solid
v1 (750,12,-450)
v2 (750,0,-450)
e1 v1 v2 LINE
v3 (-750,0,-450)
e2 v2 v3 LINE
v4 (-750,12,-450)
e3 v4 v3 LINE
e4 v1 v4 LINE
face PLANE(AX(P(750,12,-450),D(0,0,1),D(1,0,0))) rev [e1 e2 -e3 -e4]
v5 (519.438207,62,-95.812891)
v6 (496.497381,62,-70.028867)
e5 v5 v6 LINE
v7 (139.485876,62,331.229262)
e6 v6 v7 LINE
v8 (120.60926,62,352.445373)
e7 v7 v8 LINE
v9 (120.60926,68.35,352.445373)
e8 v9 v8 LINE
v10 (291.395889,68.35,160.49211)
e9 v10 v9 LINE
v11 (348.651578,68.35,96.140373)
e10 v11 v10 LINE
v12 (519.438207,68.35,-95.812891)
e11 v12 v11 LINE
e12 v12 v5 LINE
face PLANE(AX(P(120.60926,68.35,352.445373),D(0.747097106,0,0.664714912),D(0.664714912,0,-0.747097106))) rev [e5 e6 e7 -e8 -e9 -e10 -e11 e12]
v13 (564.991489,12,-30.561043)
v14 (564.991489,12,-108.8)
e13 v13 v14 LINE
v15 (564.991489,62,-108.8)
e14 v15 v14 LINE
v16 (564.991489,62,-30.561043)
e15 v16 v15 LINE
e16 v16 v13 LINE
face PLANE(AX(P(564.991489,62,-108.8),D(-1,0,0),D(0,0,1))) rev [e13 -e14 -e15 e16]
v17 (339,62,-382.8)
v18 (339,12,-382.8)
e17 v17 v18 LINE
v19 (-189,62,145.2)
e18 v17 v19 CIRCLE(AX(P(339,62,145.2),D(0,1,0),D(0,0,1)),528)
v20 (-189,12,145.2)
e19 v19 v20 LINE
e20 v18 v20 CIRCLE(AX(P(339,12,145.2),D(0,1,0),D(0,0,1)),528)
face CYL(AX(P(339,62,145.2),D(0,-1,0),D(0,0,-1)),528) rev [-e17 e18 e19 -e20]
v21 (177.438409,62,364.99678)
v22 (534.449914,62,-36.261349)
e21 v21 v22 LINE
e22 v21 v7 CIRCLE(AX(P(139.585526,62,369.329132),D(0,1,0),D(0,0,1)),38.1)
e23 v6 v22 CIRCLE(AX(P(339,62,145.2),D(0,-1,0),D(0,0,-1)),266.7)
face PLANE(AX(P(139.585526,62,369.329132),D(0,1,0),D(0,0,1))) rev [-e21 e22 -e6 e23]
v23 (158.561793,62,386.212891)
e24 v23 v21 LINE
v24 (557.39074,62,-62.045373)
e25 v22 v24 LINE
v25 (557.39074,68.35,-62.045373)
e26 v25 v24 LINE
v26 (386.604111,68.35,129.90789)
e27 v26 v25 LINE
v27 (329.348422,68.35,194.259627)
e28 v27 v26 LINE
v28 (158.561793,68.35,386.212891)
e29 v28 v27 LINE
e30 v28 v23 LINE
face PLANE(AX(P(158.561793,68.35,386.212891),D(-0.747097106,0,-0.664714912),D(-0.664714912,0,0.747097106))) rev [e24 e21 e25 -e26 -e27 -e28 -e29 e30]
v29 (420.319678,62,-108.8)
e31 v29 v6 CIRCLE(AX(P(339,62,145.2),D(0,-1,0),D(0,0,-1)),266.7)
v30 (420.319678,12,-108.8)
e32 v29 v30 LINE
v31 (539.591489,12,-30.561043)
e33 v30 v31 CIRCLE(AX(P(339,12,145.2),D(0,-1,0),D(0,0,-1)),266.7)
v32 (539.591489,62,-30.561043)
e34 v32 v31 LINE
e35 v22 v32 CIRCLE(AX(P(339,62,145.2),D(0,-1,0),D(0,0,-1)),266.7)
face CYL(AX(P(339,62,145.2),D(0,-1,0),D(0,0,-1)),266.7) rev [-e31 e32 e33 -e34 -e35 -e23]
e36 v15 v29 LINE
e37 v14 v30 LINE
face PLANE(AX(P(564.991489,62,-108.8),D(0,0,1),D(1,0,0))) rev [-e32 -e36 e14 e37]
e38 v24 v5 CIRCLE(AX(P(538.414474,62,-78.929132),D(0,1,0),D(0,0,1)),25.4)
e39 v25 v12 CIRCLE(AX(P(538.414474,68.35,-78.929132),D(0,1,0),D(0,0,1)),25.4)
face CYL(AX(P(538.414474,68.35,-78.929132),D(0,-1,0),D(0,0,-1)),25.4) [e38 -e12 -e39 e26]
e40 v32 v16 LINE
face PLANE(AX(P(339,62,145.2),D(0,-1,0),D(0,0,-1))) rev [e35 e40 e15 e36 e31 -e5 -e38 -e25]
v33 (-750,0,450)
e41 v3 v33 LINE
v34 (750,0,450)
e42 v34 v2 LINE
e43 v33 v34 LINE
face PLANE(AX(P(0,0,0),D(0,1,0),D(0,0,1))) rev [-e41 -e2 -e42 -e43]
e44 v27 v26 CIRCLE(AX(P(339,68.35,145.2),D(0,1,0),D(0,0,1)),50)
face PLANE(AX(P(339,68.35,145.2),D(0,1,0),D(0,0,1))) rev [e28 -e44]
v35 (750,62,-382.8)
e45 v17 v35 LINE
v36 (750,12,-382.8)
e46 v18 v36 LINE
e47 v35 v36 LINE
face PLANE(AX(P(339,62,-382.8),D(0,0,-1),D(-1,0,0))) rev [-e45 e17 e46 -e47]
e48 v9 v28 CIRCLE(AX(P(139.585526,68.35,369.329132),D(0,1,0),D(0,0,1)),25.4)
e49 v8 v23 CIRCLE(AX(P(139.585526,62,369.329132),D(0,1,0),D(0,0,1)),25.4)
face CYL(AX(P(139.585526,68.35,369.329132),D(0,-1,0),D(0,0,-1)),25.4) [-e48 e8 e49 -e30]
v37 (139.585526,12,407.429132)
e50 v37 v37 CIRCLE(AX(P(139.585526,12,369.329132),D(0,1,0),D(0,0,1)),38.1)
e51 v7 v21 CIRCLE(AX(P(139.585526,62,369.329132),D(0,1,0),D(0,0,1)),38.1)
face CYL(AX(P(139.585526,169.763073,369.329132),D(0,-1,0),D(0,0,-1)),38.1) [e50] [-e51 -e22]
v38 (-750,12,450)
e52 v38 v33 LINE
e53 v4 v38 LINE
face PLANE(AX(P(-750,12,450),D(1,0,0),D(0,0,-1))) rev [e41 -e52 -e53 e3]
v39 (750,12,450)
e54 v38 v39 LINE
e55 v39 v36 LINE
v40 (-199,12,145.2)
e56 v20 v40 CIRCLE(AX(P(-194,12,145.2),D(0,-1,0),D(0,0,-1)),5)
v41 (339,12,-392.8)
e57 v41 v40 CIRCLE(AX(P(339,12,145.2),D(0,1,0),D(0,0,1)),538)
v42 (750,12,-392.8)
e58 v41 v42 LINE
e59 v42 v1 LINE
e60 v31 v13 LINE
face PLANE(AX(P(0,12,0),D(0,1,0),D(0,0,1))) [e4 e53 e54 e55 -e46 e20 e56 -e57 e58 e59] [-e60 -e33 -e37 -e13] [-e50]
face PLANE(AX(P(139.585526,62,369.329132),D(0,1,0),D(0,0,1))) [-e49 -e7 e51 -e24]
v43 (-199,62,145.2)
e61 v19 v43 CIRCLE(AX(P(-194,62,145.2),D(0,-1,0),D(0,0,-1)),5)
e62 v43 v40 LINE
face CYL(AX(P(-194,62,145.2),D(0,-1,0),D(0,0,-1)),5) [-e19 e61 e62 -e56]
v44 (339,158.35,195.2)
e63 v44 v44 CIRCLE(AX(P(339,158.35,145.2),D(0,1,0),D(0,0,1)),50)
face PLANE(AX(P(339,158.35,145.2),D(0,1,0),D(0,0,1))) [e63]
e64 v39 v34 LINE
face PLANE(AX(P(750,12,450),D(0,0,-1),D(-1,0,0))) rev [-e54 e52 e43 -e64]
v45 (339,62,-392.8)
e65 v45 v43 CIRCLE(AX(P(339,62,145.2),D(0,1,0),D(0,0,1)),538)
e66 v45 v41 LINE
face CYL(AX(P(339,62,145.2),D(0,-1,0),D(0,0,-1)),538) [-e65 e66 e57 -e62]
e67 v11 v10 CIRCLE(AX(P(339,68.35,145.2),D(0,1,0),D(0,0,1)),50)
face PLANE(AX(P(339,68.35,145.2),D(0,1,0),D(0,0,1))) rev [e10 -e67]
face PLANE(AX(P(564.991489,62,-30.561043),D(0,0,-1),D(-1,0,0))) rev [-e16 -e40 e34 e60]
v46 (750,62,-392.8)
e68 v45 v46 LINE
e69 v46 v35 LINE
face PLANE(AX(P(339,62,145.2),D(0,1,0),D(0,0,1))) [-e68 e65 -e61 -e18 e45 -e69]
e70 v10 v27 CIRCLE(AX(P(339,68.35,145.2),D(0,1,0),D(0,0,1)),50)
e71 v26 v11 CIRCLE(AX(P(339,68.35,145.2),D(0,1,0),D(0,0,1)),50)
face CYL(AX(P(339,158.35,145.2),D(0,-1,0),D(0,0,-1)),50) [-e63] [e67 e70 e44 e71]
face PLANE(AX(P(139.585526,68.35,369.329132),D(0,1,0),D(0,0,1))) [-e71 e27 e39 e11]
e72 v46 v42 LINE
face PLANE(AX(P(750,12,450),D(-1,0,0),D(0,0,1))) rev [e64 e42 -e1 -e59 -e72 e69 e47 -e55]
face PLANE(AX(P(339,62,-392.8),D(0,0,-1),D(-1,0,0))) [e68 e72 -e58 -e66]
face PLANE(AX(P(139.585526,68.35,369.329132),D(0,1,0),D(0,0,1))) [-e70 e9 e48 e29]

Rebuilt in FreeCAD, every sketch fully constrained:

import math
import FreeCAD as App
import Part
import Sketcher
Q = App.Units.Quantity


def add_polygon(sketch, points):
    """Adds a closed chain of lines whose ends are joined by coincident constraints."""
    first, n = sketch.GeometryCount, len(points)
    for a, b in zip(points, points[1:] + points[:1]):
        sketch.addGeometry(Part.LineSegment(App.Vector(*a, 0), App.Vector(*b, 0)), False)
    for i in range(n):
        sketch.addConstraint(Sketcher.Constraint("Coincident", first + i, 2, first + (i + 1) % n, 1))

doc = App.newDocument("Part")
body = doc.addObject("PartDesign::Body", "Body")

sketch1 = body.newObject("Sketcher::SketchObject", "Sketch")
sketch1.AttachmentSupport = (doc.getObject("XZ_Plane"), [""])
sketch1.MapMode = "FlatFace"
add_polygon(sketch1, [(-750, -450), (-750, 450), (750, 450), (750, -450)])
sketch1.addConstraint([
    Sketcher.Constraint("Vertical", 0),
    Sketcher.Constraint("Horizontal", 1),
    Sketcher.Constraint("Vertical", 2),
    Sketcher.Constraint("Horizontal", 3),
    Sketcher.Constraint("Symmetric", 0, 2, 2, 2, -1, 1),
    Sketcher.Constraint("DistanceX", 1, 1, 1, 2, Q("1500 mm")),
    Sketcher.Constraint("DistanceY", 0, 1, 0, 2, Q("900 mm")),
])
pad1 = body.newObject("PartDesign::Pad", "Pad")
pad1.Profile = sketch1
pad1.Length = 12
pad1.Reversed = True

sketch2 = body.newObject("Sketcher::SketchObject", "Sketch001")
sketch2.AttachmentSupport = (doc.getObject("XZ_Plane"), [""])
sketch2.MapMode = "FlatFace"
sketch2.AttachmentOffset = App.Placement(App.Vector(0, 0, -12), App.Rotation())
sketch2.addGeometry([
    Part.LineSegment(App.Vector(339, -383, 0), App.Vector(750, -383, 0)),
    Part.LineSegment(App.Vector(750, -383, 0), App.Vector(750, -393, 0)),
    Part.LineSegment(App.Vector(750, -393, 0), App.Vector(339, -393, 0)),
    Part.ArcOfCircle(Part.Circle(App.Vector(339, 145, 0), App.Vector(0, 0, 1), 538), math.radians(-180), math.radians(-90)),
    Part.ArcOfCircle(Part.Circle(App.Vector(-194, 145, 0), App.Vector(0, 0, 1), 5), math.radians(0), math.radians(180)),
    Part.ArcOfCircle(Part.Circle(App.Vector(339, 145, 0), App.Vector(0, 0, 1), 528), math.radians(-180), math.radians(-90)),
], False)
sketch2.addConstraint([
    Sketcher.Constraint("Coincident", 0, 2, 1, 1),
    Sketcher.Constraint("Coincident", 1, 2, 2, 1),
    Sketcher.Constraint("Tangent", 2, 2, 3, 2),
    Sketcher.Constraint("Tangent", 3, 1, 4, 2),
    Sketcher.Constraint("Tangent", 4, 1, 5, 1),
    Sketcher.Constraint("Tangent", 5, 2, 0, 1),
    Sketcher.Constraint("Horizontal", 0),
    Sketcher.Constraint("Vertical", 1),
    Sketcher.Constraint("Horizontal", 2),
    Sketcher.Constraint("Coincident", 5, 3, 3, 3),
    Sketcher.Constraint("Horizontal", 3, 3, 4, 3),
    Sketcher.Constraint("Radius", 3, Q("538 mm")),
    Sketcher.Constraint("Radius", 4, Q("5 mm")),
    Sketcher.Constraint("DistanceX", 0, 1, 0, 2, Q("411 mm")),
    Sketcher.Constraint("DistanceX", -1, 1, 3, 3, Q("339 mm")),
    Sketcher.Constraint("DistanceY", -1, 1, 3, 3, Q("145.2 mm")),
])
pad2 = body.newObject("PartDesign::Pad", "Pad001")
pad2.Profile = sketch2
pad2.Length = 50
pad2.Reversed = True

sketch3 = body.newObject("Sketcher::SketchObject", "Sketch002")
sketch3.AttachmentSupport = (doc.getObject("XZ_Plane"), [""])
sketch3.MapMode = "FlatFace"
sketch3.AttachmentOffset = App.Placement(App.Vector(0, 0, -12), App.Rotation())
sketch3.addGeometry([
    Part.LineSegment(App.Vector(565, -109, 0), App.Vector(420, -109, 0)),
    Part.ArcOfCircle(Part.Circle(App.Vector(339, 145, 0), App.Vector(0, 0, 1), 267), math.radians(-72), math.radians(-41)),
    Part.LineSegment(App.Vector(540, -31, 0), App.Vector(565, -31, 0)),
    Part.LineSegment(App.Vector(565, -31, 0), App.Vector(565, -109, 0)),
], False)
sketch3.addConstraint([
    Sketcher.Constraint("Coincident", 0, 2, 1, 1),
    Sketcher.Constraint("Coincident", 1, 2, 2, 1),
    Sketcher.Constraint("Coincident", 2, 2, 3, 1),
    Sketcher.Constraint("Coincident", 3, 2, 0, 1),
    Sketcher.Constraint("Horizontal", 0),
    Sketcher.Constraint("Horizontal", 2),
    Sketcher.Constraint("Vertical", 3),
    Sketcher.Constraint("Radius", 1, Q("266.7 mm")),
    Sketcher.Constraint("DistanceX", 2, 1, 2, 2, Q("25.4 mm")),
    Sketcher.Constraint("DistanceX", -1, 1, 1, 3, Q("339 mm")),
    Sketcher.Constraint("DistanceY", 0, 2, 1, 3, Q("254 mm")),
    Sketcher.Constraint("DistanceY", -1, 1, 1, 3, Q("145.2 mm")),
    Sketcher.Constraint("DistanceX", 0, 2, 0, 1, Q("144.671812 mm")),
])
pad3 = body.newObject("PartDesign::Pad", "Pad002")
pad3.Profile = sketch3
pad3.Length = 50
pad3.Reversed = True

sketch4 = body.newObject("Sketcher::SketchObject", "Sketch003")
sketch4.AttachmentSupport = (doc.getObject("XZ_Plane"), [""])
sketch4.MapMode = "FlatFace"
sketch4.AttachmentOffset = App.Placement(App.Vector(0, 0, -62), App.Rotation())
sketch4.addGeometry([
    Part.LineSegment(App.Vector(519, -96, 0), App.Vector(121, 352, 0)),
    Part.ArcOfCircle(Part.Circle(App.Vector(140, 369, 0), App.Vector(0, 0, 1), 25), math.radians(42), math.radians(222)),
    Part.LineSegment(App.Vector(159, 386, 0), App.Vector(557, -62, 0)),
    Part.ArcOfCircle(Part.Circle(App.Vector(538, -79, 0), App.Vector(0, 0, 1), 25), math.radians(-138), math.radians(42)),
], False)
sketch4.addConstraint([
    Sketcher.Constraint("Tangent", 0, 2, 1, 2),
    Sketcher.Constraint("Tangent", 1, 1, 2, 1),
    Sketcher.Constraint("Tangent", 2, 2, 3, 2),
    Sketcher.Constraint("Tangent", 3, 1, 0, 1),
    Sketcher.Constraint("Equal", 1, 3),
    Sketcher.Constraint("Radius", 1, Q("25.4 mm")),
    Sketcher.Constraint("Distance", 0, Q("600 mm")),
    Sketcher.Constraint("DistanceY", -1, 1, 1, 3, Q("369.329132 mm")),
    Sketcher.Constraint("DistanceY", 3, 3, -1, 1, Q("78.929132 mm")),
    Sketcher.Constraint("DistanceX", -1, 1, 0, 2, Q("120.60926 mm")),
])
pad4 = body.newObject("PartDesign::Pad", "Pad003")
pad4.Profile = sketch4
pad4.Length = 6.35
pad4.Reversed = True

sketch5 = body.newObject("Sketcher::SketchObject", "Sketch004")
sketch5.AttachmentSupport = (doc.getObject("XZ_Plane"), [""])
sketch5.MapMode = "FlatFace"
sketch5.AttachmentOffset = App.Placement(App.Vector(0, 0, -12), App.Rotation())
sketch5.addGeometry(Part.Circle(App.Vector(140, 369, 0), App.Vector(0, 0, 1), 38), False)
sketch5.addConstraint([
    Sketcher.Constraint("Diameter", 0, Q("76.2 mm")),
    Sketcher.Constraint("DistanceY", -1, 1, 0, 3, Q("369.329132 mm")),
    Sketcher.Constraint("DistanceX", -1, 1, 0, 3, Q("139.585526 mm")),
])
pad5 = body.newObject("PartDesign::Pad", "Pad004")
pad5.Profile = sketch5
pad5.Length = 50
pad5.Reversed = True

sketch6 = body.newObject("Sketcher::SketchObject", "Sketch005")
sketch6.AttachmentSupport = (doc.getObject("XZ_Plane"), [""])
sketch6.MapMode = "FlatFace"
sketch6.AttachmentOffset = App.Placement(App.Vector(0, 0, -68.35), App.Rotation())
sketch6.addGeometry(Part.Circle(App.Vector(339, 145, 0), App.Vector(0, 0, 1), 50), False)
sketch6.addConstraint([
    Sketcher.Constraint("Diameter", 0, Q("100 mm")),
    Sketcher.Constraint("DistanceX", -1, 1, 0, 3, Q("339 mm")),
    Sketcher.Constraint("DistanceY", -1, 1, 0, 3, Q("145.2 mm")),
])
pad6 = body.newObject("PartDesign::Pad", "Pad005")
pad6.Profile = sketch6
pad6.Length = 90
pad6.Reversed = True

doc.recompute()
